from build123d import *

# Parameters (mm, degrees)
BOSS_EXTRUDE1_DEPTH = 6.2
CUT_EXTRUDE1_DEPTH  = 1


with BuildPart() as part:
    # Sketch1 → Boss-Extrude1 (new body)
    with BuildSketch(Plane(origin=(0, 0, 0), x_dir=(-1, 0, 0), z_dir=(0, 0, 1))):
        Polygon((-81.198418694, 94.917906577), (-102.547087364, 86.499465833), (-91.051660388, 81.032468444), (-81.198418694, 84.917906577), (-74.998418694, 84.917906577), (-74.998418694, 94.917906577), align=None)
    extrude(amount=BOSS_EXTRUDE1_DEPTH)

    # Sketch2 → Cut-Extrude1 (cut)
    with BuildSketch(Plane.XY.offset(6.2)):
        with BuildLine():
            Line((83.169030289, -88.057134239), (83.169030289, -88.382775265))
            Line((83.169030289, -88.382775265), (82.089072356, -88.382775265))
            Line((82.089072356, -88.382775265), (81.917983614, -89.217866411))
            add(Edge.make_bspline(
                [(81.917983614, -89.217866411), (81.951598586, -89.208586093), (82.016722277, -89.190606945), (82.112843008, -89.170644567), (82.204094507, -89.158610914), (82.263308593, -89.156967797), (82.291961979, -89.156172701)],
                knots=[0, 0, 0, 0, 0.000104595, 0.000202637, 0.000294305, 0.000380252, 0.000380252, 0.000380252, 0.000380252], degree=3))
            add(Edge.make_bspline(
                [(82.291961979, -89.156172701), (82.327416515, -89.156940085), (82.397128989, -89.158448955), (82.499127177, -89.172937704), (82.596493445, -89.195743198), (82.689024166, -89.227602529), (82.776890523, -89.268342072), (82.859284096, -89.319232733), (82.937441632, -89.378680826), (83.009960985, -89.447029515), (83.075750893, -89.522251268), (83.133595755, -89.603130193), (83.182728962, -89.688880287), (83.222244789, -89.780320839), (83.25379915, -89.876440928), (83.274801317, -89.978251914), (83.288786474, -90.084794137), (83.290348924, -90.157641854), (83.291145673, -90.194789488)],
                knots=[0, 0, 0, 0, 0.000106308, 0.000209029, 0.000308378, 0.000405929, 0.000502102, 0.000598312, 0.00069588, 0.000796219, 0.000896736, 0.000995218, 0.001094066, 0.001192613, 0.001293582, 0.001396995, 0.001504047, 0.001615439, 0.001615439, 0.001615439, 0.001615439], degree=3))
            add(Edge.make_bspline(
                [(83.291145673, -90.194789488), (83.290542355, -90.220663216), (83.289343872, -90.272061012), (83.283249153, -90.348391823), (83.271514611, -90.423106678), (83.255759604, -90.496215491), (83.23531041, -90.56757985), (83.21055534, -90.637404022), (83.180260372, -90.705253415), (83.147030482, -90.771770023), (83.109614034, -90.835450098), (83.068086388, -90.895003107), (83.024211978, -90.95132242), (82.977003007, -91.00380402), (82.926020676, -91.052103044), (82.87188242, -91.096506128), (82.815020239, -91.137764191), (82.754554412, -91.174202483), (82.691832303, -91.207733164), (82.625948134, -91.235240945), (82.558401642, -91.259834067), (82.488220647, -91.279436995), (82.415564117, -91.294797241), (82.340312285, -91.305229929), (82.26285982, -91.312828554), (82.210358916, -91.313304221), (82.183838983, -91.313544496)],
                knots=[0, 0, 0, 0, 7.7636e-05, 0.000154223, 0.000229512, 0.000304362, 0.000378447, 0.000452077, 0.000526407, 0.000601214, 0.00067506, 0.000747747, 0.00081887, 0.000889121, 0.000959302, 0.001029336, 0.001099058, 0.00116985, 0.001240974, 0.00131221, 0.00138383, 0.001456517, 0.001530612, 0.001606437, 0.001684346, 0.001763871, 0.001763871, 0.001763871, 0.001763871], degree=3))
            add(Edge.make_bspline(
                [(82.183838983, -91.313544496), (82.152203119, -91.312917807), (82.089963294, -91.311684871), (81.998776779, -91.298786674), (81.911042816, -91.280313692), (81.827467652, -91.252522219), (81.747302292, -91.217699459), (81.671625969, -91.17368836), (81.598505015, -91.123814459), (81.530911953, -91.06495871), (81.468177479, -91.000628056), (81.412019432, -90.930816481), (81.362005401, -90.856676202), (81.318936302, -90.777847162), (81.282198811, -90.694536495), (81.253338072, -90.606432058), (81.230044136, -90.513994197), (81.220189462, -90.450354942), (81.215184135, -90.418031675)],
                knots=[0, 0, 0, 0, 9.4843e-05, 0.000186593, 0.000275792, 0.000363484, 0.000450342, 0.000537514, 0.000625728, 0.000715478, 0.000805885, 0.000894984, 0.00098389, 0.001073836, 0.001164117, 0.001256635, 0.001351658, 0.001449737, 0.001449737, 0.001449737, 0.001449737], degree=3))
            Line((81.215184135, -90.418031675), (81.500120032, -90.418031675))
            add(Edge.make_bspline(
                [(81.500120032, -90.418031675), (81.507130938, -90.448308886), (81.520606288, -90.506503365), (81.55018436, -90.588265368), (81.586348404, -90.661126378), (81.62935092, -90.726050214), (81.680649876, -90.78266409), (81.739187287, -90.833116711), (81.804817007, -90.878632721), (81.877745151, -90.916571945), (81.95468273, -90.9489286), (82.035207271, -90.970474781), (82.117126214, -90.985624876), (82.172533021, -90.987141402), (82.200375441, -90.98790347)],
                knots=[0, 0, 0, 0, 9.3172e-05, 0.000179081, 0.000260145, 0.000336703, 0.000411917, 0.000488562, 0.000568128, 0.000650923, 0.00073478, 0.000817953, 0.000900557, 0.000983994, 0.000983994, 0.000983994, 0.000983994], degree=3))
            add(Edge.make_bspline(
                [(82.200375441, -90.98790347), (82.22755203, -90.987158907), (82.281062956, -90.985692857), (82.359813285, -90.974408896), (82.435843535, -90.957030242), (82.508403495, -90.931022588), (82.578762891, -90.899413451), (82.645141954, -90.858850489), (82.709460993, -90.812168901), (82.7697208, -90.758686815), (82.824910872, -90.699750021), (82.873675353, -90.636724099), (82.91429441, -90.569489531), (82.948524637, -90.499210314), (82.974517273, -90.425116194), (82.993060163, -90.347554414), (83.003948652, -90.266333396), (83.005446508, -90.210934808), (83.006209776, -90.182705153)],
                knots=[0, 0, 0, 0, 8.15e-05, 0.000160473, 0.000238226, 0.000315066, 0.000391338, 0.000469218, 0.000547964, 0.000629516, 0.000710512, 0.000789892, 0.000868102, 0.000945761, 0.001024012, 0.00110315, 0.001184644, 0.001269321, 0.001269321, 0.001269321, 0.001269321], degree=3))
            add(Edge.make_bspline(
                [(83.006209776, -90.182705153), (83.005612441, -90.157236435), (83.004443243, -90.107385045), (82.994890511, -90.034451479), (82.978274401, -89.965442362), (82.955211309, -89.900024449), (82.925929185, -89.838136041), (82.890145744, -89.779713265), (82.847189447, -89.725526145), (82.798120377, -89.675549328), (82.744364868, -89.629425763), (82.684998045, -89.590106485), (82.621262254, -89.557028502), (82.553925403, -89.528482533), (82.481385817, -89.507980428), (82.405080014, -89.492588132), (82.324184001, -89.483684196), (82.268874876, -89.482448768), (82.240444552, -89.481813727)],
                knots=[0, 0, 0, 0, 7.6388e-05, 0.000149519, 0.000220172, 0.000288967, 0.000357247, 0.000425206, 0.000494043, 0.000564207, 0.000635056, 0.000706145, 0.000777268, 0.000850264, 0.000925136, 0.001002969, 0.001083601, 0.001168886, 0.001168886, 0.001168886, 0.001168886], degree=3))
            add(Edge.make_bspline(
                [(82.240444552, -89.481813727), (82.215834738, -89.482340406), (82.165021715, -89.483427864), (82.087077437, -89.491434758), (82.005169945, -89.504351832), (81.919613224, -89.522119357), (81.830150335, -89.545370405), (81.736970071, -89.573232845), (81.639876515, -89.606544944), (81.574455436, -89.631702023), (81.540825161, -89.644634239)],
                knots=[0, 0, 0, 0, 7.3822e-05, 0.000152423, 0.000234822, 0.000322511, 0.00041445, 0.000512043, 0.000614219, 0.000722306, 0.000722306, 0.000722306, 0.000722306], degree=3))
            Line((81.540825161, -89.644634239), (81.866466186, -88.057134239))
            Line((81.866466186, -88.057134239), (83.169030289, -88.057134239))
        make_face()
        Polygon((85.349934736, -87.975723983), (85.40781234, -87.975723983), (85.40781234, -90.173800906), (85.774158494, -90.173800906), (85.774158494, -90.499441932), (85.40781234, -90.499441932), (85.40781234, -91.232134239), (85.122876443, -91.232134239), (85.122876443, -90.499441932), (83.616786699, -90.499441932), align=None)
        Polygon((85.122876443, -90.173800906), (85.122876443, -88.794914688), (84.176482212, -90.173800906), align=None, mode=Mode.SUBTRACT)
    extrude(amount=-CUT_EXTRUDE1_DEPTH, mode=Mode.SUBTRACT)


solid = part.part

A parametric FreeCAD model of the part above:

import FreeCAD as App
import Part
import Sketcher

V = App.Vector
Q = App.Units.Quantity


def add_polygon(sketch, points):
    """Adds a closed chain of lines whose ends are joined by coincident constraints."""
    first, n = sketch.GeometryCount, len(points)
    for a, b in zip(points, points[1:] + points[:1]):
        sketch.addGeometry(Part.LineSegment(App.Vector(*a, 0), App.Vector(*b, 0)), False)
    for i in range(n):
        sketch.addConstraint(Sketcher.Constraint("Coincident", first + i, 2, first + (i + 1) % n, 1))

doc = App.newDocument("Part")
params = doc.addObject("Spreadsheet::Sheet", "Params")
for row, (alias, value) in enumerate([
    ("sketch1_height", "10 mm"),
    ("sketch1_width", "6.2 mm"),
    ("pad1_length", "6.2 mm"),
    ("pocket1_length", "1 mm"),
], start=1):
    params.set(f"A{row}", alias)
    params.set(f"B{row}", "=" + value)
    params.setAlias(f"B{row}", alias)

body = doc.addObject("PartDesign::Body", "Body")

# Sketch on XY plane
sketch1 = doc.addObject("Sketcher::SketchObject", "Sketch")
body.addObject(sketch1)
sketch1.AttachmentSupport = (doc.XY_Plane, [""])
sketch1.MapMode = "FlatFace"
add_polygon(sketch1, [(81, -95), (103, -86), (91, -81), (81, -85), (75, -85), (75, -95)])  # lines 0-5
sketch1.addConstraint([
    Sketcher.Constraint("Horizontal", 3),
    Sketcher.Constraint("Vertical", 4),
    Sketcher.Constraint("Horizontal", 5),
    Sketcher.Constraint("Parallel", 0, 2),
    Sketcher.Constraint("Vertical", 2, 2, 5, 2),
    Sketcher.Constraint("DistanceY", 4, 2, 4, 1, Q("10 mm")),
    Sketcher.Constraint("DistanceX", 3, 2, 3, 1, Q("6.2 mm")),
    Sketcher.Constraint("DistanceX", -1, 1, 1, 2, Q("91.05166 mm")),
    Sketcher.Constraint("DistanceY", 1, 2, -1, 1, Q("81.032468 mm")),
    Sketcher.Constraint("DistanceX", -1, 1, 2, 2, Q("81.198419 mm")),
    Sketcher.Constraint("DistanceY", 2, 2, 1, 2, Q("3.885438 mm")),
    Sketcher.Constraint("DistanceX", 2, 2, 0, 2, Q("21.348669 mm")),
])
sketch1.setExpression("Constraints[11]", "Params.sketch1_height")
sketch1.setExpression("Constraints[12]", "Params.sketch1_width")
pad1 = doc.addObject("PartDesign::Pad", "Pad")
body.addObject(pad1)
pad1.Profile = sketch1
pad1.setExpression("Length", "Params.pad1_length")

# Sketch on XY plane
sketch2 = doc.addObject("Sketcher::SketchObject", "Sketch001")
body.addObject(sketch2)
sketch2.AttachmentSupport = (doc.XY_Plane, [""])
sketch2.MapMode = "FlatFace"
sketch2.AttachmentOffset = App.Placement(V(0, 0, 6.2), App.Rotation())
sketch2.addGeometry(Part.LineSegment(V(83.16903, -88.382775, 0), V(83.16903, -88.057134, 0)), False)  # 0
sketch2.addGeometry(Part.LineSegment(V(83.16903, -88.057134, 0), V(81.866466, -88.057134, 0)), False)  # 1
sketch2.addGeometry(Part.LineSegment(V(81.866466, -88.057134, 0), V(81.540825, -89.644634, 0)), False)  # 2
sketch2.addGeometry(Part.BSplineCurve([V(82.240445, -89.481814, 0), V(82.215835, -89.48234, 0), V(82.165022, -89.483428, 0), V(82.087077, -89.491435, 0), V(82.00517, -89.504352, 0), V(81.919613, -89.522119, 0), V(81.83015, -89.54537, 0), V(81.73697, -89.573233, 0), V(81.639877, -89.606545, 0), V(81.574455, -89.631702, 0), V(81.540825, -89.644634, 0)], [4, 1, 1, 1, 1, 1, 1, 1, 4], [0, 0.000073822, 0.000152423, 0.000234822, 0.000322511, 0.00041445, 0.000512043, 0.000614219, 0.000722306], False, 3, [1, 1, 1, 1, 1, 1, 1, 1, 1, 1, 1], False), False)  # 3
sketch2.addGeometry(Part.BSplineCurve([V(83.00621, -90.182705, 0), V(83.005612, -90.157236, 0), V(83.004443, -90.107385, 0), V(82.994891, -90.034451, 0), V(82.978274, -89.965442, 0), V(82.955211, -89.900024, 0), V(82.925929, -89.838136, 0), V(82.890146, -89.779713, 0), V(82.847189, -89.725526, 0), V(82.79812, -89.675549, 0), V(82.744365, -89.629426, 0), V(82.684998, -89.590106, 0), V(82.621262, -89.557029, 0), V(82.553925, -89.528483, 0), V(82.481386, -89.50798, 0), V(82.40508, -89.492588, 0), V(82.324184, -89.483684, 0), V(82.268875, -89.482449, 0), V(82.240445, -89.481814, 0)], [4, 1, 1, 1, 1, 1, 1, 1, 1, 1, 1, 1, 1, 1, 1, 1, 4], [0, 0.000076388, 0.000149519, 0.000220172, 0.000288967, 0.000357247, 0.000425206, 0.000494043, 0.000564207, 0.000635056, 0.000706145, 0.000777268, 0.000850264, 0.000925136, 0.001002969, 0.001083601, 0.001168886], False, 3, [1, 1, 1, 1, 1, 1, 1, 1, 1, 1, 1, 1, 1, 1, 1, 1, 1, 1, 1], False), False)  # 4
sketch2.addGeometry(Part.BSplineCurve([V(82.200375, -90.987903, 0), V(82.227552, -90.987159, 0), V(82.281063, -90.985693, 0), V(82.359813, -90.974409, 0), V(82.435844, -90.95703, 0), V(82.508403, -90.931023, 0), V(82.578763, -90.899413, 0), V(82.645142, -90.85885, 0), V(82.709461, -90.812169, 0), V(82.769721, -90.758687, 0), V(82.824911, -90.69975, 0), V(82.873675, -90.636724, 0), V(82.914294, -90.56949, 0), V(82.948525, -90.49921, 0), V(82.974517, -90.425116, 0), V(82.99306, -90.347554, 0), V(83.003949, -90.266333, 0), V(83.005447, -90.210935, 0), V(83.00621, -90.182705, 0)], [4, 1, 1, 1, 1, 1, 1, 1, 1, 1, 1, 1, 1, 1, 1, 1, 4], [0, 0.0000815, 0.000160473, 0.000238226, 0.000315066, 0.000391338, 0.000469218, 0.000547964, 0.000629516, 0.000710512, 0.000789892, 0.000868102, 0.000945761, 0.001024012, 0.00110315, 0.001184644, 0.001269321], False, 3, [1, 1, 1, 1, 1, 1, 1, 1, 1, 1, 1, 1, 1, 1, 1, 1, 1, 1, 1], False), False)  # 5
sketch2.addGeometry(Part.BSplineCurve([V(81.50012, -90.418032, 0), V(81.507131, -90.448309, 0), V(81.520606, -90.506503, 0), V(81.550184, -90.588265, 0), V(81.586348, -90.661126, 0), V(81.629351, -90.72605, 0), V(81.68065, -90.782664, 0), V(81.739187, -90.833117, 0), V(81.804817, -90.878633, 0), V(81.877745, -90.916572, 0), V(81.954683, -90.948929, 0), V(82.035207, -90.970475, 0), V(82.117126, -90.985625, 0), V(82.172533, -90.987141, 0), V(82.200375, -90.987903, 0)], [4, 1, 1, 1, 1, 1, 1, 1, 1, 1, 1, 1, 4], [0, 0.000093172, 0.000179081, 0.000260145, 0.000336703, 0.000411917, 0.000488562, 0.000568128, 0.000650923, 0.00073478, 0.000817953, 0.000900557, 0.000983994], False, 3, [1, 1, 1, 1, 1, 1, 1, 1, 1, 1, 1, 1, 1, 1, 1], False), False)  # 6
sketch2.addGeometry(Part.LineSegment(V(81.50012, -90.418032, 0), V(81.215184, -90.418032, 0)), False)  # 7
sketch2.addGeometry(Part.BSplineCurve([V(82.183839, -91.313544, 0), V(82.152203, -91.312918, 0), V(82.089963, -91.311685, 0), V(81.998777, -91.298787, 0), V(81.911043, -91.280314, 0), V(81.827468, -91.252522, 0), V(81.747302, -91.217699, 0), V(81.671626, -91.173688, 0), V(81.598505, -91.123814, 0), V(81.530912, -91.064959, 0), V(81.468177, -91.000628, 0), V(81.412019, -90.930816, 0), V(81.362005, -90.856676, 0), V(81.318936, -90.777847, 0), V(81.282199, -90.694536, 0), V(81.253338, -90.606432, 0), V(81.230044, -90.513994, 0), V(81.220189, -90.450355, 0), V(81.215184, -90.418032, 0)], [4, 1, 1, 1, 1, 1, 1, 1, 1, 1, 1, 1, 1, 1, 1, 1, 4], [0, 0.000094843, 0.000186593, 0.000275792, 0.000363484, 0.000450342, 0.000537514, 0.000625728, 0.000715478, 0.000805885, 0.000894984, 0.00098389, 0.001073836, 0.001164117, 0.001256635, 0.001351658, 0.001449737], False, 3, [1, 1, 1, 1, 1, 1, 1, 1, 1, 1, 1, 1, 1, 1, 1, 1, 1, 1, 1], False), False)  # 8
sketch2.addGeometry(Part.BSplineCurve([V(83.291146, -90.194789, 0), V(83.290542, -90.220663, 0), V(83.289344, -90.272061, 0), V(83.283249, -90.348392, 0), V(83.271515, -90.423107, 0), V(83.25576, -90.496215, 0), V(83.23531, -90.56758, 0), V(83.210555, -90.637404, 0), V(83.18026, -90.705253, 0), V(83.14703, -90.77177, 0), V(83.109614, -90.83545, 0), V(83.068086, -90.895003, 0), V(83.024212, -90.951322, 0), V(82.977003, -91.003804, 0), V(82.926021, -91.052103, 0), V(82.871882, -91.096506, 0), V(82.81502, -91.137764, 0), V(82.754554, -91.174202, 0), V(82.691832, -91.207733, 0), V(82.625948, -91.235241, 0), V(82.558402, -91.259834, 0), V(82.488221, -91.279437, 0), V(82.415564, -91.294797, 0), V(82.340312, -91.30523, 0), V(82.26286, -91.312829, 0), V(82.210359, -91.313304, 0), V(82.183839, -91.313544, 0)], [4, 1, 1, 1, 1, 1, 1, 1, 1, 1, 1, 1, 1, 1, 1, 1, 1, 1, 1, 1, 1, 1, 1, 1, 4], [0, 0.000077636, 0.000154223, 0.000229512, 0.000304362, 0.000378447, 0.000452077, 0.000526407, 0.000601214, 0.00067506, 0.000747747, 0.00081887, 0.000889121, 0.000959302, 0.001029336, 0.001099058, 0.00116985, 0.001240974, 0.00131221, 0.00138383, 0.001456517, 0.001530612, 0.001606437, 0.001684346, 0.001763871], False, 3, [1, 1, 1, 1, 1, 1, 1, 1, 1, 1, 1, 1, 1, 1, 1, 1, 1, 1, 1, 1, 1, 1, 1, 1, 1, 1, 1], False), False)  # 9
sketch2.addGeometry(Part.BSplineCurve([V(82.291962, -89.156173, 0), V(82.327417, -89.15694, 0), V(82.397129, -89.158449, 0), V(82.499127, -89.172938, 0), V(82.596493, -89.195743, 0), V(82.689024, -89.227603, 0), V(82.776891, -89.268342, 0), V(82.859284, -89.319233, 0), V(82.937442, -89.378681, 0), V(83.009961, -89.44703, 0), V(83.075751, -89.522251, 0), V(83.133596, -89.60313, 0), V(83.182729, -89.68888, 0), V(83.222245, -89.780321, 0), V(83.253799, -89.876441, 0), V(83.274801, -89.978252, 0), V(83.288786, -90.084794, 0), V(83.290349, -90.157642, 0), V(83.291146, -90.194789, 0)], [4, 1, 1, 1, 1, 1, 1, 1, 1, 1, 1, 1, 1, 1, 1, 1, 4], [0, 0.000106308, 0.000209029, 0.000308378, 0.000405929, 0.000502102, 0.000598312, 0.00069588, 0.000796219, 0.000896736, 0.000995218, 0.001094066, 0.001192613, 0.001293582, 0.001396995, 0.001504047, 0.001615439], False, 3, [1, 1, 1, 1, 1, 1, 1, 1, 1, 1, 1, 1, 1, 1, 1, 1, 1, 1, 1], False), False)  # 10
sketch2.addGeometry(Part.BSplineCurve([V(81.917984, -89.217866, 0), V(81.951599, -89.208586, 0), V(82.016722, -89.190607, 0), V(82.112843, -89.170645, 0), V(82.204095, -89.158611, 0), V(82.263309, -89.156968, 0), V(82.291962, -89.156173, 0)], [4, 1, 1, 1, 4], [0, 0.000104595, 0.000202637, 0.000294305, 0.000380252], False, 3, [1, 1, 1, 1, 1, 1, 1], False), False)  # 11
sketch2.addGeometry(Part.LineSegment(V(81.917984, -89.217866, 0), V(82.089072, -88.382775, 0)), False)  # 12
sketch2.addGeometry(Part.LineSegment(V(82.089072, -88.382775, 0), V(83.16903, -88.382775, 0)), False)  # 13
add_polygon(sketch2, [(85.407812, -87.975724), (85.349935, -87.975724), (83.616787, -90.499442), (85.122876, -90.499442), (85.122876, -91.232134), (85.407812, -91.232134), (85.407812, -90.499442), (85.774158, -90.499442), (85.774158, -90.173801), (85.407812, -90.173801)])  # lines 14-23
add_polygon(sketch2, [(85.122876, -90.173801), (84.176482, -90.173801), (85.122876, -88.794915)])  # lines 24-26
sketch2.addConstraint([
    Sketcher.Constraint("Block", 3),
    Sketcher.Constraint("Block", 4),
    Sketcher.Constraint("Block", 5),
    Sketcher.Constraint("Block", 6),
    Sketcher.Constraint("Block", 8),
    Sketcher.Constraint("Block", 9),
    Sketcher.Constraint("Block", 10),
    Sketcher.Constraint("Block", 11),
    Sketcher.Constraint("Coincident", 0, 2, 1, 1),
    Sketcher.Constraint("Coincident", 1, 2, 2, 1),
    Sketcher.Constraint("Coincident", 2, 2, 3, 2),
    Sketcher.Constraint("Coincident", 6, 1, 7, 1),
    Sketcher.Constraint("Coincident", 7, 2, 8, 2),
    Sketcher.Constraint("Coincident", 11, 1, 12, 1),
    Sketcher.Constraint("Coincident", 12, 2, 13, 1),
    Sketcher.Constraint("Coincident", 13, 2, 0, 1),
    Sketcher.Constraint("Vertical", 0),
    Sketcher.Constraint("Horizontal", 1),
    Sketcher.Constraint("Horizontal", 13),
    Sketcher.Constraint("Horizontal", 14),
    Sketcher.Constraint("Horizontal", 16),
    Sketcher.Constraint("Vertical", 17),
    Sketcher.Constraint("Horizontal", 18),
    Sketcher.Constraint("Vertical", 19),
    Sketcher.Constraint("Horizontal", 20),
    Sketcher.Constraint("Vertical", 21),
    Sketcher.Constraint("Horizontal", 22),
    Sketcher.Constraint("Vertical", 23),
    Sketcher.Constraint("Horizontal", 24),
    Sketcher.Constraint("Vertical", 26),
    Sketcher.Constraint("DistanceY", 17, 2, 0, 2, Q("3.175 mm")),
    Sketcher.Constraint("DistanceX", 16, 1, 16, 2, Q("1.50609 mm")),
    Sketcher.Constraint("DistanceY", 0, 1, 0, 2, Q("0.325641 mm")),
    Sketcher.Constraint("DistanceY", 21, 1, 21, 2, Q("0.325641 mm")),
    Sketcher.Constraint("DistanceY", 21, 2, -1, 1, Q("90.173801 mm")),
    Sketcher.Constraint("DistanceY", 24, 2, -1, 1, Q("90.173801 mm")),
    Sketcher.Constraint("DistanceY", 2, 2, 1, 2, Q("1.5875 mm")),
    Sketcher.Constraint("Distance", 15, Q("3.061528 mm")),
    Sketcher.Constraint("Distance", 25, Q("1.67242 mm")),
    Sketcher.Constraint("DistanceX", 1, 2, 1, 1, Q("1.302564 mm")),
    Sketcher.Constraint("DistanceX", 13, 1, 13, 2, Q("1.079958 mm")),
    Sketcher.Constraint("DistanceX", 14, 2, 14, 1, Q("0.057878 mm")),
    Sketcher.Constraint("DistanceX", 18, 1, 18, 2, Q("0.284936 mm")),
    Sketcher.Constraint("DistanceX", 20, 1, 20, 2, Q("0.366346 mm")),
    Sketcher.Constraint("DistanceX", 22, 2, 22, 1, Q("0.366346 mm")),
    Sketcher.Constraint("DistanceX", 24, 2, 24, 1, Q("0.946394 mm")),
    Sketcher.Constraint("DistanceY", 17, 2, 17, 1, Q("0.732692 mm")),
    Sketcher.Constraint("DistanceX", -1, 1, 0, 2, Q("83.16903 mm")),
    Sketcher.Constraint("DistanceX", -1, 1, 20, 2, Q("85.774158 mm")),
    Sketcher.Constraint("DistanceX", 24, 2, 22, 2, Q("1.23133 mm")),
])
pocket1 = doc.addObject("PartDesign::Pocket", "Pocket")
body.addObject(pocket1)
pocket1.Profile = sketch2
pocket1.setExpression("Length", "Params.pocket1_length")

doc.recompute()
